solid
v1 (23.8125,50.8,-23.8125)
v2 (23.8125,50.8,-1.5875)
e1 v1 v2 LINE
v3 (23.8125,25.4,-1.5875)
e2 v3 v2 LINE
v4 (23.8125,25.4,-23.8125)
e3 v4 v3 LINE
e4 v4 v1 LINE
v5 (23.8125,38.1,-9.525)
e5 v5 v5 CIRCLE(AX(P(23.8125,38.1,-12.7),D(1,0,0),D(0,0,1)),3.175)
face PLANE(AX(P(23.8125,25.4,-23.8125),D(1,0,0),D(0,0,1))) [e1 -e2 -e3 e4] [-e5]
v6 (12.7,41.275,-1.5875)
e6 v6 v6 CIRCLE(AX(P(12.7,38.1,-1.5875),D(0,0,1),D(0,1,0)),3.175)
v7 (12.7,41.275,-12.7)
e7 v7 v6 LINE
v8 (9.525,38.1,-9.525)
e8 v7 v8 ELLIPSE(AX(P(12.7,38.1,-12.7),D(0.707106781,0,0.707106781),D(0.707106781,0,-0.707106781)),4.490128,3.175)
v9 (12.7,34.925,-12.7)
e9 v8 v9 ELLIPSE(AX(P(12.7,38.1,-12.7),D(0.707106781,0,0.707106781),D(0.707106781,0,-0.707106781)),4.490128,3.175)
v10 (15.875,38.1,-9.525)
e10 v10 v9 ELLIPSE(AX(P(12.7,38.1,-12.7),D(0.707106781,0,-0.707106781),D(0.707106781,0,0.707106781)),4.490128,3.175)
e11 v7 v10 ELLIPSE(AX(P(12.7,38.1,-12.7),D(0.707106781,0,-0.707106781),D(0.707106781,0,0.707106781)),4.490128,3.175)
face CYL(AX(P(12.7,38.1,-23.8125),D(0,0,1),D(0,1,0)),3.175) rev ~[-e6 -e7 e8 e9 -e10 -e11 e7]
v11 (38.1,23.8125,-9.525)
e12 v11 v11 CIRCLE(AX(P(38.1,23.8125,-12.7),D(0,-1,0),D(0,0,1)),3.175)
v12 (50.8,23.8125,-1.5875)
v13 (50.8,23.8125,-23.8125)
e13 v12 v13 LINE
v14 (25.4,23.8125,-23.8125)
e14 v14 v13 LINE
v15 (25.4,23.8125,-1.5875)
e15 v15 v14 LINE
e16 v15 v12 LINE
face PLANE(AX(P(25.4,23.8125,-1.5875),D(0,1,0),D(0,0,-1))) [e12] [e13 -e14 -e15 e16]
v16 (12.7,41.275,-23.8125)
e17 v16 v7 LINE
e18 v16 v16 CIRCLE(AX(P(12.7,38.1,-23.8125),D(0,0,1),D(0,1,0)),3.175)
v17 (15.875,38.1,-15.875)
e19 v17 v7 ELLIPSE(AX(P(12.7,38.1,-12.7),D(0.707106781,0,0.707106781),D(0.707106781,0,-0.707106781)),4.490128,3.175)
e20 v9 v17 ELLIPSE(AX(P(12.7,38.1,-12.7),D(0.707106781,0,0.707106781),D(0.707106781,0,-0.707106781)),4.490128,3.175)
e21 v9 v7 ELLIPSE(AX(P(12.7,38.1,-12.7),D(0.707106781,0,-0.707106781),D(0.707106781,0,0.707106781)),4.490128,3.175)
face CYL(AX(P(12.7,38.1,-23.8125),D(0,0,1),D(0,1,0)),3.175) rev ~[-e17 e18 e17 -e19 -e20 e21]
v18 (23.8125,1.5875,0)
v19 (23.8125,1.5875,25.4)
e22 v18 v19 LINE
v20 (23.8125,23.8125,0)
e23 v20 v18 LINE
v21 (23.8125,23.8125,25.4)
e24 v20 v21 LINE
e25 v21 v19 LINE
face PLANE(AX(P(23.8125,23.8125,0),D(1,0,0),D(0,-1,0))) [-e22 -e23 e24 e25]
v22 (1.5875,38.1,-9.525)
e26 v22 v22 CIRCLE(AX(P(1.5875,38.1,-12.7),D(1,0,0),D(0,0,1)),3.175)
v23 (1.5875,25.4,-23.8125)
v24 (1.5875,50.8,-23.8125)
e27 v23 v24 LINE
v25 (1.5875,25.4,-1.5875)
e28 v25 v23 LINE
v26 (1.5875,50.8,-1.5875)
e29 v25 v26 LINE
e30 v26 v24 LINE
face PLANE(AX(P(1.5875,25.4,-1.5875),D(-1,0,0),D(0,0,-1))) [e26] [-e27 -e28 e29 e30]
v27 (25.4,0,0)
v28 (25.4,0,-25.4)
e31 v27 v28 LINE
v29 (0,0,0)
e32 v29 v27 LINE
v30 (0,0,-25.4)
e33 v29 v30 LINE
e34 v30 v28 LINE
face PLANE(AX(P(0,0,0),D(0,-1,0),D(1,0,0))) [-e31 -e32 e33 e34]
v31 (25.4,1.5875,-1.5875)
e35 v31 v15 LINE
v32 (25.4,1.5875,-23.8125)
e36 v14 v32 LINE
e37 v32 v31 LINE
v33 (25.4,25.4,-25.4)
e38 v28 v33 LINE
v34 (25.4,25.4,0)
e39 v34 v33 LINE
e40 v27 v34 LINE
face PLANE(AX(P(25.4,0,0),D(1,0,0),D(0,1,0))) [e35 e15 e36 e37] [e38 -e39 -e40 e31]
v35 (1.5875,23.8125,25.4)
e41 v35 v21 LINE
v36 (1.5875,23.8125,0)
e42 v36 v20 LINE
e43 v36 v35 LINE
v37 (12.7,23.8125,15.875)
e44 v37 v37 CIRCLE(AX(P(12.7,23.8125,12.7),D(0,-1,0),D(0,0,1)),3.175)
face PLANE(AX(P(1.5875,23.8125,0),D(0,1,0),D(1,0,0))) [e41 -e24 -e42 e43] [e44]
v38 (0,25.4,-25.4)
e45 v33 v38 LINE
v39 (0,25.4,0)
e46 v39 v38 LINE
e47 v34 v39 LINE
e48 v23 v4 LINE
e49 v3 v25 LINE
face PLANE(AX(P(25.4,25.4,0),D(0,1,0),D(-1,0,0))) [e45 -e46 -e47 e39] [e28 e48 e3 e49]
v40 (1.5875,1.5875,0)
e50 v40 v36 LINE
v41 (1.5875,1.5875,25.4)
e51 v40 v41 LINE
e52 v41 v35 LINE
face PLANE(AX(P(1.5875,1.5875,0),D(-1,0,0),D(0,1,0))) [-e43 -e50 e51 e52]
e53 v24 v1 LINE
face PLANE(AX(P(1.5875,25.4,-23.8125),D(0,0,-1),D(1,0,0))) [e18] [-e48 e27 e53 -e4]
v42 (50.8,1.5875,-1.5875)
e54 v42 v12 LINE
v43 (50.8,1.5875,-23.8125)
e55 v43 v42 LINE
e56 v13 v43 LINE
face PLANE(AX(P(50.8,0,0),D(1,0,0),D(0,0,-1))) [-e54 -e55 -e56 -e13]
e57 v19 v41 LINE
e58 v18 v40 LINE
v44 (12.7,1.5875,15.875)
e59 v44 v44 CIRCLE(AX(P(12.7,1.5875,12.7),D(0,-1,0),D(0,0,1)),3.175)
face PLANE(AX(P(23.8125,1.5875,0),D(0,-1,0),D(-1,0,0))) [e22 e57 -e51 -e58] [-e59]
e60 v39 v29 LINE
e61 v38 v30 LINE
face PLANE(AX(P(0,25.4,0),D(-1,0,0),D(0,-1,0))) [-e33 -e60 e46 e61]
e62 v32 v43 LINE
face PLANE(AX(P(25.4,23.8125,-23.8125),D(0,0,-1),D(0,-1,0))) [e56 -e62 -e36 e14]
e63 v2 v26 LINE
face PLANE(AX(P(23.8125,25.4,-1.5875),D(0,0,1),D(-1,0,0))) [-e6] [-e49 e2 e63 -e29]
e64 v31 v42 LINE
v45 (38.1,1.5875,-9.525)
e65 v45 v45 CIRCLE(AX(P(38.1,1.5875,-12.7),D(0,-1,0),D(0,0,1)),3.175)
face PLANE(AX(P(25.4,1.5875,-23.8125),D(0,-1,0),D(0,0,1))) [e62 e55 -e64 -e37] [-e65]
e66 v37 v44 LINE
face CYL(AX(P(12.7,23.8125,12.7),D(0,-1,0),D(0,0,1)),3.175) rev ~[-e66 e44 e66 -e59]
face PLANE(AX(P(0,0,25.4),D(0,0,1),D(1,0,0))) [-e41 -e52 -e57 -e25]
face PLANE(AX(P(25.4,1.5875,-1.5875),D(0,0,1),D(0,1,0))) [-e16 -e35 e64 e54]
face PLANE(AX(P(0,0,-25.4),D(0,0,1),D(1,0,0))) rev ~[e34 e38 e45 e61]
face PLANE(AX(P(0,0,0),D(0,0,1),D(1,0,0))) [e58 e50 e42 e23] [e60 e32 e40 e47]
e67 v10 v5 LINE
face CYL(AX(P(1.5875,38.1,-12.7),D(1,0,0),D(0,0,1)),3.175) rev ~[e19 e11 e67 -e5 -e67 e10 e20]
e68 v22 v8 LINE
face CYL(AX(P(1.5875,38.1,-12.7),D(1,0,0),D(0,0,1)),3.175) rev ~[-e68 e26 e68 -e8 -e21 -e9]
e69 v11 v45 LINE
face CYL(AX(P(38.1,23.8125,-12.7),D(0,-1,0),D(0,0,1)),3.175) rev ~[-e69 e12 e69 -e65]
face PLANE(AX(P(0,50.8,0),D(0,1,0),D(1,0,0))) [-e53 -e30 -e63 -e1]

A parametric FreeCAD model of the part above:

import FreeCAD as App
import Part
import Sketcher
Q = App.Units.Quantity

doc = App.newDocument("Part")
body = doc.addObject("PartDesign::Body", "Body")

sketch1 = body.newObject("Sketcher::SketchObject", "Sketch")
sketch1.AttachmentSupport = (doc.getObject("XY_Plane"), [""])
sketch1.MapMode = "FlatFace"
sketch1.addGeometry([
    Part.LineSegment(App.Vector(0, 25, 0), App.Vector(0, 0, 0)),
    Part.LineSegment(App.Vector(0, 0, 0), App.Vector(25, 0, 0)),
    Part.LineSegment(App.Vector(25, 0, 0), App.Vector(25, 25, 0)),
    Part.LineSegment(App.Vector(25, 25, 0), App.Vector(0, 25, 0)),
], False)
sketch1.addConstraint([
    Sketcher.Constraint("Coincident", 0, 2, 1, 1),
    Sketcher.Constraint("Coincident", 1, 2, 2, 1),
    Sketcher.Constraint("Coincident", 2, 2, 3, 1),
    Sketcher.Constraint("Coincident", 3, 2, 0, 1),
    Sketcher.Constraint("Vertical", 0),
    Sketcher.Constraint("Horizontal", 1),
    Sketcher.Constraint("Vertical", 2),
    Sketcher.Constraint("Horizontal", 3),
    Sketcher.Constraint("Coincident", 0, 2, -1, 1),
    Sketcher.Constraint("Equal", 3, 0),
    Sketcher.Constraint("DistanceX", 1, 1, 1, 2, Q("1 in")),
])
pad1 = body.newObject("PartDesign::Pad", "Pad")
pad1.Profile = sketch1
pad1.Length = Q("1 in")
pad1.Reversed = True

sketch2 = body.newObject("Sketcher::SketchObject", "Sketch001")
sketch2.AttachmentSupport = (doc.getObject("XY_Plane"), [""])
sketch2.MapMode = "FlatFace"
sketch2.addGeometry([
    Part.LineSegment(App.Vector(24, 24, 0), App.Vector(2, 24, 0)),
    Part.LineSegment(App.Vector(2, 24, 0), App.Vector(2, 2, 0)),
    Part.LineSegment(App.Vector(2, 2, 0), App.Vector(24, 2, 0)),
    Part.LineSegment(App.Vector(24, 2, 0), App.Vector(24, 24, 0)),
], False)
sketch2.addConstraint([
    Sketcher.Constraint("Coincident", 0, 2, 1, 1),
    Sketcher.Constraint("Coincident", 1, 2, 2, 1),
    Sketcher.Constraint("Coincident", 2, 2, 3, 1),
    Sketcher.Constraint("Coincident", 3, 2, 0, 1),
    Sketcher.Constraint("Horizontal", 0),
    Sketcher.Constraint("Vertical", 1),
    Sketcher.Constraint("Horizontal", 2),
    Sketcher.Constraint("Vertical", 3),
    Sketcher.Constraint("Equal", 2, 1),
    Sketcher.Constraint("DistanceX", -1, 1, 0, 2, Q("0.0625 in")),
    Sketcher.Constraint("DistanceY", -1, 1, 1, 2, Q("0.0625 in")),
    Sketcher.Constraint("DistanceX", 0, 2, 0, 1, Q("0.875 in")),
])
pad2 = body.newObject("PartDesign::Pad", "Pad001")
pad2.Profile = sketch2
pad2.Length = Q("1 in")

sketch3 = body.newObject("Sketcher::SketchObject", "Sketch002")
sketch3.AttachmentSupport = (doc.getObject("YZ_Plane"), [""])
sketch3.MapMode = "FlatFace"
sketch3.AttachmentOffset = App.Placement(App.Vector(0, 0, 1 * 25.4), App.Rotation())
sketch3.addGeometry([
    Part.LineSegment(App.Vector(2, -24, 0), App.Vector(24, -24, 0)),
    Part.LineSegment(App.Vector(24, -24, 0), App.Vector(24, -2, 0)),
    Part.LineSegment(App.Vector(24, -2, 0), App.Vector(2, -2, 0)),
    Part.LineSegment(App.Vector(2, -2, 0), App.Vector(2, -24, 0)),
], False)
sketch3.addConstraint([
    Sketcher.Constraint("Coincident", 0, 2, 1, 1),
    Sketcher.Constraint("Coincident", 1, 2, 2, 1),
    Sketcher.Constraint("Coincident", 2, 2, 3, 1),
    Sketcher.Constraint("Coincident", 3, 2, 0, 1),
    Sketcher.Constraint("Horizontal", 0),
    Sketcher.Constraint("Vertical", 1),
    Sketcher.Constraint("Horizontal", 2),
    Sketcher.Constraint("Vertical", 3),
    Sketcher.Constraint("Equal", 2, 1),
    Sketcher.Constraint("DistanceY", 1, 2, -1, 1, Q("0.0625 in")),
    Sketcher.Constraint("DistanceX", -1, 1, 2, 2, Q("0.0625 in")),
    Sketcher.Constraint("DistanceX", 0, 1, 0, 2, Q("0.875 in")),
])
pad3 = body.newObject("PartDesign::Pad", "Pad002")
pad3.Profile = sketch3
pad3.Length = Q("1 in")

sketch4 = body.newObject("Sketcher::SketchObject", "Sketch003")
sketch4.AttachmentSupport = (doc.getObject("XZ_Plane"), [""])
sketch4.MapMode = "FlatFace"
sketch4.AttachmentOffset = App.Placement(App.Vector(0, 0, -1 * 25.4), App.Rotation())
sketch4.addGeometry([
    Part.LineSegment(App.Vector(24, -24, 0), App.Vector(2, -24, 0)),
    Part.LineSegment(App.Vector(2, -24, 0), App.Vector(2, -2, 0)),
    Part.LineSegment(App.Vector(2, -2, 0), App.Vector(24, -2, 0)),
    Part.LineSegment(App.Vector(24, -2, 0), App.Vector(24, -24, 0)),
], False)
sketch4.addConstraint([
    Sketcher.Constraint("Coincident", 0, 2, 1, 1),
    Sketcher.Constraint("Coincident", 1, 2, 2, 1),
    Sketcher.Constraint("Coincident", 2, 2, 3, 1),
    Sketcher.Constraint("Coincident", 3, 2, 0, 1),
    Sketcher.Constraint("Horizontal", 0),
    Sketcher.Constraint("Vertical", 1),
    Sketcher.Constraint("Horizontal", 2),
    Sketcher.Constraint("Vertical", 3),
    Sketcher.Constraint("Equal", 2, 1),
    Sketcher.Constraint("DistanceX", -1, 1, 0, 2, Q("0.0625 in")),
    Sketcher.Constraint("DistanceY", 1, 2, -1, 1, Q("0.0625 in")),
    Sketcher.Constraint("DistanceX", 0, 2, 0, 1, Q("0.875 in")),
])
pad4 = body.newObject("PartDesign::Pad", "Pad003")
pad4.Profile = sketch4
pad4.Length = Q("1 in")
pad4.Reversed = True

sketch5 = body.newObject("Sketcher::SketchObject", "Sketch004")
sketch5.AttachmentSupport = (doc.getObject("YZ_Plane"), [""])
sketch5.MapMode = "FlatFace"
sketch5.AttachmentOffset = App.Placement(App.Vector(0, 0, 0.0625 * 25.4), App.Rotation())
sketch5.addGeometry(Part.Circle(App.Vector(38.1, -12.7, 0), App.Vector(0, 0, 1), 3.2), False)
sketch5.addConstraint([
    Sketcher.Constraint("Diameter", 0, Q("0.25 in")),
    Sketcher.Constraint("DistanceX", -1, 1, 0, 3, Q("1.5 in")),
    Sketcher.Constraint("DistanceY", 0, 3, -1, 1, Q("0.5 in")),
])
doc.recompute()
hole = body.newObject("PartDesign::Hole", "Hole")
hole.Profile = sketch5
hole.ThreadType = "None"
hole.Diameter = Q("0.25 in")
hole.DepthType = "Dimension"
hole.Depth = Q("1 in")
hole.DrillPoint = "Angled"
hole.DrillPointAngle = 118
hole.Reversed = True

sketch6 = body.newObject("Sketcher::SketchObject", "Sketch005")
sketch6.AttachmentSupport = (doc.getObject("XY_Plane"), [""])
sketch6.MapMode = "FlatFace"
sketch6.AttachmentOffset = App.Placement(App.Vector(0, 0, -0.9375 * 25.4), App.Rotation())
sketch6.addGeometry(Part.Circle(App.Vector(12.7, 38.1, 0), App.Vector(0, 0, 1), 3.2), False)
sketch6.addConstraint([
    Sketcher.Constraint("Diameter", 0, Q("0.25 in")),
    Sketcher.Constraint("DistanceX", -1, 1, 0, 3, Q("0.5 in")),
    Sketcher.Constraint("DistanceY", -1, 1, 0, 3, Q("1.5 in")),
])
doc.recompute()
hole2 = body.newObject("PartDesign::Hole", "Hole001")
hole2.Profile = sketch6
hole2.ThreadType = "None"
hole2.Diameter = Q("0.25 in")
hole2.DepthType = "Dimension"
hole2.Depth = Q("1 in")
hole2.DrillPoint = "Angled"
hole2.DrillPointAngle = 118
hole2.Reversed = True

sketch7 = body.newObject("Sketcher::SketchObject", "Sketch006")
sketch7.AttachmentSupport = (doc.getObject("XZ_Plane"), [""])
sketch7.MapMode = "FlatFace"
sketch7.AttachmentOffset = App.Placement(App.Vector(0, 0, -0.9375 * 25.4), App.Rotation())
sketch7.addGeometry([
    Part.Circle(App.Vector(12.7, 12.7, 0), App.Vector(0, 0, 1), 3.2),
    Part.Circle(App.Vector(38.1, -12.7, 0), App.Vector(0, 0, 1), 3.2),
], False)
sketch7.addConstraint([
    Sketcher.Constraint("Equal", 0, 1),
    Sketcher.Constraint("Diameter", 0, Q("0.25 in")),
    Sketcher.Constraint("DistanceX", 0, 3, 1, 3, Q("1 in")),
    Sketcher.Constraint("DistanceY", 1, 3, 0, 3, Q("1 in")),
    Sketcher.Constraint("DistanceX", -1, 1, 0, 3, Q("0.5 in")),
    Sketcher.Constraint("DistanceY", -1, 1, 0, 3, Q("0.5 in")),
])
doc.recompute()
hole3 = body.newObject("PartDesign::Hole", "Hole002")
hole3.Profile = sketch7
hole3.ThreadType = "None"
hole3.Diameter = Q("0.25 in")
hole3.DepthType = "Dimension"
hole3.Depth = Q("1 in")
hole3.DrillPoint = "Angled"
hole3.DrillPointAngle = 118
hole3.Reversed = True

doc.recompute()
